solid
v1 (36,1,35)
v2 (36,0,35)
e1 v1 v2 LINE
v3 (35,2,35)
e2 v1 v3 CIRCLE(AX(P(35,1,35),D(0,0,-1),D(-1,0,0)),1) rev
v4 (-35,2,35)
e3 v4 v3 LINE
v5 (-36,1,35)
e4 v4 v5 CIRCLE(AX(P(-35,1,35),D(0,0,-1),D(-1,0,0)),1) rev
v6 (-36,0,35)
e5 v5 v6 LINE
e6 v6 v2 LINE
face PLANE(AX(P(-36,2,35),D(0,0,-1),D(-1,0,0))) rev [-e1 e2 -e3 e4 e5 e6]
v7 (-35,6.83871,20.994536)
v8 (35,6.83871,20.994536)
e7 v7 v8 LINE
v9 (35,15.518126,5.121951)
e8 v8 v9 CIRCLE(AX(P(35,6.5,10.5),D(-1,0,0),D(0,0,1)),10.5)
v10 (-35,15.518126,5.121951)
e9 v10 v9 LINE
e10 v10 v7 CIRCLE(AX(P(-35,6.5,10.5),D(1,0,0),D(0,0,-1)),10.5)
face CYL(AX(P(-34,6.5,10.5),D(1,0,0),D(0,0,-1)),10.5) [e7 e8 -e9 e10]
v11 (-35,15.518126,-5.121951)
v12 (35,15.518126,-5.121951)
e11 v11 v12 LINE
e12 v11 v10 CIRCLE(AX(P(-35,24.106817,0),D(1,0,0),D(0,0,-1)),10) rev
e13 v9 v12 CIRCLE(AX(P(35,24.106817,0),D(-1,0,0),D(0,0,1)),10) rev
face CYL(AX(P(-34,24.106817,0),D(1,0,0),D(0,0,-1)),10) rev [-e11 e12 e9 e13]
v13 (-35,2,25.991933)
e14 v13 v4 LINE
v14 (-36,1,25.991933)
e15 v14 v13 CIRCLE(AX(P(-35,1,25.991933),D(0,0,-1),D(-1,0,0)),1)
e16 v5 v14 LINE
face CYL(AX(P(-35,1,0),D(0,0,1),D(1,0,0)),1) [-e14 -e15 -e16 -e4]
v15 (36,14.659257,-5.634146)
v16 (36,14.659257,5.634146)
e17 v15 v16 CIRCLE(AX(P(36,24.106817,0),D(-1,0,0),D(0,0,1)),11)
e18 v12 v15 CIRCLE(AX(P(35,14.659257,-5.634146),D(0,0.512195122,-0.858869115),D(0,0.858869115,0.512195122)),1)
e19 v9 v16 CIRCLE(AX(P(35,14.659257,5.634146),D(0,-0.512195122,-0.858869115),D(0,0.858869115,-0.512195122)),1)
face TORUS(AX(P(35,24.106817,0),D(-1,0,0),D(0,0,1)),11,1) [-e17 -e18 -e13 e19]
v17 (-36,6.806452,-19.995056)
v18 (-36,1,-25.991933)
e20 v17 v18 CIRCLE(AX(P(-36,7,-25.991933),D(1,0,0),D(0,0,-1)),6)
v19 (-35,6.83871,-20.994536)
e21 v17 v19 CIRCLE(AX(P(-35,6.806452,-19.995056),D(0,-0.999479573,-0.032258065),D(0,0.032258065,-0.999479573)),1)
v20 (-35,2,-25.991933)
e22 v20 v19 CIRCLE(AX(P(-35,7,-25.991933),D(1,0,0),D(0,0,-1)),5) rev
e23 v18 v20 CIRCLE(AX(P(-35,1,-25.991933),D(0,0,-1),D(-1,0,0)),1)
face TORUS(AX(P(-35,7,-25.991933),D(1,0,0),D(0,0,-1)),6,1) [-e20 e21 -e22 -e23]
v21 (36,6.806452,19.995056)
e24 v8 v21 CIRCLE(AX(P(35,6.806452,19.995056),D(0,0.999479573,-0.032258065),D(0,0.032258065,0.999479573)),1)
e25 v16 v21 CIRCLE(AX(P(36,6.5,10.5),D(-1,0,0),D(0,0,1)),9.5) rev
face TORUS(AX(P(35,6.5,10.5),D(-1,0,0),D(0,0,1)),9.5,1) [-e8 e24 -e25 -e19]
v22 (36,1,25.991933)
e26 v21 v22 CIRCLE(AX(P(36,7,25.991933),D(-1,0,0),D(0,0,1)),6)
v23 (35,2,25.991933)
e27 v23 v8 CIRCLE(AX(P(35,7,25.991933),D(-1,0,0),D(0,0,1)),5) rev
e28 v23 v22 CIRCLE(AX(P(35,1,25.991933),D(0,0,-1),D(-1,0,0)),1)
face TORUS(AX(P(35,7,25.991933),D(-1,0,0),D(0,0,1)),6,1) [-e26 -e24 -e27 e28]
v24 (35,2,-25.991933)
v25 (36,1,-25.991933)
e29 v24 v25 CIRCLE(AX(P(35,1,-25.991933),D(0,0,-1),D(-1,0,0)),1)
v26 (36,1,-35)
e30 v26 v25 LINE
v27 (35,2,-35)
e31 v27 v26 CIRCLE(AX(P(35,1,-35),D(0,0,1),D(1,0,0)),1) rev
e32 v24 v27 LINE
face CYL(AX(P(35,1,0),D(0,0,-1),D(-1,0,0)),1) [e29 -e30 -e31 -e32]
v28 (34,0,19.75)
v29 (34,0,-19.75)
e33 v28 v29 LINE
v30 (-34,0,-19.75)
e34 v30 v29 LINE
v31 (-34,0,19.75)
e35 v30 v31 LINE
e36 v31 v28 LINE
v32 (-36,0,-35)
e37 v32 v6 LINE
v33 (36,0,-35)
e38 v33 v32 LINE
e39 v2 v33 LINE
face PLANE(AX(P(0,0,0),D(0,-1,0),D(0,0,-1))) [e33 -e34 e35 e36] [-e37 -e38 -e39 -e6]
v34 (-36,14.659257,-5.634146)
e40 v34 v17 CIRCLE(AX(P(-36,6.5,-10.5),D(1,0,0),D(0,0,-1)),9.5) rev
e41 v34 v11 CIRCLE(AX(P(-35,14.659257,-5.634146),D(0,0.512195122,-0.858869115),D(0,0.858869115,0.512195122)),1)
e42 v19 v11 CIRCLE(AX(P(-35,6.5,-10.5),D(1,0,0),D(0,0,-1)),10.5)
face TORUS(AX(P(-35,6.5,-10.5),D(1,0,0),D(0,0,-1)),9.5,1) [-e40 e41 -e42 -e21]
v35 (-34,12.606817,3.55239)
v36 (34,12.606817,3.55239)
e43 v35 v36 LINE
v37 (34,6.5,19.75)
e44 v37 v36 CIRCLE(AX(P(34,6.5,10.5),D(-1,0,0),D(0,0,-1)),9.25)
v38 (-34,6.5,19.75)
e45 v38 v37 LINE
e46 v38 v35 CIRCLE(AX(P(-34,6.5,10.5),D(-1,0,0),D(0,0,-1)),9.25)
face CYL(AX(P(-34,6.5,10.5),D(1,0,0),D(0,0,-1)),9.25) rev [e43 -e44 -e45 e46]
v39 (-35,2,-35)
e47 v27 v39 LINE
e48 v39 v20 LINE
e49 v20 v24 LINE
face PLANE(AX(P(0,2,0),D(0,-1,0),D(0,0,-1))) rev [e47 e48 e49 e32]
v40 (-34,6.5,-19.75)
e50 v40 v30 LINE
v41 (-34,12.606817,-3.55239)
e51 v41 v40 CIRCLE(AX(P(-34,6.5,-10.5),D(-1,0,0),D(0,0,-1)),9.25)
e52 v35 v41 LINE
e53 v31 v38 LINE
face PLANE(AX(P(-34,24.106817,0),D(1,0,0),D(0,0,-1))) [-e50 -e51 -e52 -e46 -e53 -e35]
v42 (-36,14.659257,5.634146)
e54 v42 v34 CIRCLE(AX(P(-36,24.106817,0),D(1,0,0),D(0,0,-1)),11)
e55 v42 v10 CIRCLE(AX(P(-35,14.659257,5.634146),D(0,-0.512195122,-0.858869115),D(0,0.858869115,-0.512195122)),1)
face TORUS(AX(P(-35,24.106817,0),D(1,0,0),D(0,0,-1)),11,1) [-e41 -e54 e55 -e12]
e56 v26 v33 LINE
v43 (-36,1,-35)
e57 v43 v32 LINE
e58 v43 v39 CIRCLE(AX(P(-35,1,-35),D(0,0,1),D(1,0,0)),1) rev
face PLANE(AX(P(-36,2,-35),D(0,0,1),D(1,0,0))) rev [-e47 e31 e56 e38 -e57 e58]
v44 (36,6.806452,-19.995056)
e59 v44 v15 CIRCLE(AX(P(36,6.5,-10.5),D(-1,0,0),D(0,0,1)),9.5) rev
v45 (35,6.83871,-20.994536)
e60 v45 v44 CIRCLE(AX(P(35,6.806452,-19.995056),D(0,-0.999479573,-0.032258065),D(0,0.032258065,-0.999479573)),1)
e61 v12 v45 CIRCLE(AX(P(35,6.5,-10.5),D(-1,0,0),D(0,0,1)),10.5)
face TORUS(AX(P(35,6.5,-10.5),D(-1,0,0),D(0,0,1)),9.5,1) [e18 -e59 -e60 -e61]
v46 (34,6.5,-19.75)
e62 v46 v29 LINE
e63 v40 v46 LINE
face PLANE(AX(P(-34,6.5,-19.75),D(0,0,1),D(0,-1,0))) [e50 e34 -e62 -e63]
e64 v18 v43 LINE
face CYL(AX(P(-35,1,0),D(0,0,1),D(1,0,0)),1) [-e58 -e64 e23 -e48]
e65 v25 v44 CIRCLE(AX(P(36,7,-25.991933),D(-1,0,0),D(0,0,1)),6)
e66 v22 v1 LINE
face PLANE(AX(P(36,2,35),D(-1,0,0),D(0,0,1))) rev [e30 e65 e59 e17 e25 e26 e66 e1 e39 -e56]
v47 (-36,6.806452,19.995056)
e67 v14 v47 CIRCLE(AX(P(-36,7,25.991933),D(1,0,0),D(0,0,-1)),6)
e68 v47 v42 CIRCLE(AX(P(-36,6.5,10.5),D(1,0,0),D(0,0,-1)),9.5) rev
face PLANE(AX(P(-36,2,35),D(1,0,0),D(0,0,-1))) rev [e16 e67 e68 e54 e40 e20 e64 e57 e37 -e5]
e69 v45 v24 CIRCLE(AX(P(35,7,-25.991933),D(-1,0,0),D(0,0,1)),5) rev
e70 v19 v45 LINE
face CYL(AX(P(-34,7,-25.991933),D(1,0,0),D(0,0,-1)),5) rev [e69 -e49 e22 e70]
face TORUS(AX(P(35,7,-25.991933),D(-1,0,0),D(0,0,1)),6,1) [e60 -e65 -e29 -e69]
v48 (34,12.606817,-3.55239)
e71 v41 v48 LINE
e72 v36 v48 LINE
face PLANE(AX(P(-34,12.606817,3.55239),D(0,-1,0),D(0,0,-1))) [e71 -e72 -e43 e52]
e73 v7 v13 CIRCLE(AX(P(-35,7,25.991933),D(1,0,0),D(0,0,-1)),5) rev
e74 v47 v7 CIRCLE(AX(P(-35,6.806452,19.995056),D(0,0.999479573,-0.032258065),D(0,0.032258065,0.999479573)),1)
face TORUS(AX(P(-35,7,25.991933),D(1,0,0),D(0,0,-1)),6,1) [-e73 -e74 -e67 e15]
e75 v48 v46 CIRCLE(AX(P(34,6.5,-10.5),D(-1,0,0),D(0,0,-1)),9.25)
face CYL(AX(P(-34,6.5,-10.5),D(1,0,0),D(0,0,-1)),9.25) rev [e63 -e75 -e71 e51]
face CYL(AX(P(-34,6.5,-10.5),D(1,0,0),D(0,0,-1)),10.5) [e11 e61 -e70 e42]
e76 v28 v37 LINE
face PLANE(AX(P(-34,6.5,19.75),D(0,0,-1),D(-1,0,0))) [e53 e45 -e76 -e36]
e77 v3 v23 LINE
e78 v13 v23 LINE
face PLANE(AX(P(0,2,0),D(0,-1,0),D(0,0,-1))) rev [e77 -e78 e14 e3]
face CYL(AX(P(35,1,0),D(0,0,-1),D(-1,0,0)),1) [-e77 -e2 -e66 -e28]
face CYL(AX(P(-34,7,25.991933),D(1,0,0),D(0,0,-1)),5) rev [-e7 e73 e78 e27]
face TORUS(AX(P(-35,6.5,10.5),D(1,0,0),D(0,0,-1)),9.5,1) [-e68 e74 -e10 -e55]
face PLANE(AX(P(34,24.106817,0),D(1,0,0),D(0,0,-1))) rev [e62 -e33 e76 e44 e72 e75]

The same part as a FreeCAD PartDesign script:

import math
import FreeCAD as App
import Part
import Sketcher

V = App.Vector


def edges_at(feature, points):
    """Names of the edges that pass closest to the given points."""
    edges = feature.Shape.Edges
    near = lambda p: min(range(len(edges)), key=lambda i: edges[i].distToShape(Part.Vertex(*p))[0])
    return sorted({f"Edge{near(p) + 1}" for p in points})


def add_polygon(sketch, points):
    """Adds a closed chain of lines whose ends are joined by coincident constraints."""
    first, n = sketch.GeometryCount, len(points)
    for a, b in zip(points, points[1:] + points[:1]):
        sketch.addGeometry(Part.LineSegment(App.Vector(*a, 0), App.Vector(*b, 0)), False)
    for i in range(n):
        sketch.addConstraint(Sketcher.Constraint("Coincident", first + i, 2, first + (i + 1) % n, 1))

doc = App.newDocument("Part")
params = doc.addObject("Spreadsheet::Sheet", "Params")
for row, (alias, value) in enumerate([
    ("sketch1_width", "72 mm"),
    ("sketch1_height", "70 mm"),
    ("pad1_length", "2 mm"),
    ("sketch2_radius", "5 mm"),
    ("sketch2_radius2", "10 mm"),
    ("sketch2_radius3", "10.5 mm"),
    ("sketch2_radius4", "9.25 mm"),
    ("sketch2_width", "4.5 mm"),
    ("pad2_length", "34 mm"),
    ("pad2_length2", "34 mm"),
    ("sketch3_width", "2 mm"),
    ("sketch3_height", "39.5 mm"),
    ("pocket1_length", "68 mm"),
    ("sketch4_radius", "5 mm"),
    ("sketch4_radius2", "10 mm"),
    ("sketch4_radius3", "10.5 mm"),
    ("pad3_length", "2 mm"),
    ("fillet_radius", "1 mm"),
    ("fillet2_radius", "1 mm"),
], start=1):
    params.set(f"A{row}", alias)
    params.set(f"B{row}", "=" + value)
    params.setAlias(f"B{row}", alias)

body = doc.addObject("PartDesign::Body", "Body")

# Sketch on XZ plane
sketch1 = body.newObject("Sketcher::SketchObject", "Sketch")
sketch1.AttachmentSupport = (doc.getObject("XZ_Plane"), [""])
sketch1.MapMode = "FlatFace"
add_polygon(sketch1, [(-36, -35), (-36, 35), (36, 35), (36, -35)])  # lines 0-3
sketch1.addConstraint([
    Sketcher.Constraint("Vertical", 0),
    Sketcher.Constraint("Horizontal", 1),
    Sketcher.Constraint("Vertical", 2),
    Sketcher.Constraint("Horizontal", 3),
    Sketcher.Constraint("Symmetric", 0, 2, 2, 2, -1, 1),
    Sketcher.Constraint("DistanceX", 1, 1, 1, 2, 72.0),
    Sketcher.Constraint("DistanceY", 0, 1, 0, 2, 70.0),
])
sketch1.setExpression("Constraints[9]", "Params.sketch1_width")
sketch1.setExpression("Constraints[10]", "Params.sketch1_height")
pad1 = body.newObject("PartDesign::Pad", "Pad")
pad1.Profile = sketch1
pad1.setExpression("Length", "Params.pad1_length")
pad1.Reversed = True

# Sketch on YZ plane
sketch2 = body.newObject("Sketcher::SketchObject", "Sketch001")
sketch2.AttachmentSupport = (doc.getObject("YZ_Plane"), [""])
sketch2.MapMode = "FlatFace"
sketch2.addGeometry([
    Part.LineSegment(V(2, 26, 0), V(2, 19.8, 0)),  # 0
    Part.LineSegment(V(2, 19.8, 0), V(6.5, 19.8, 0)),  # 1
    Part.ArcOfCircle(Part.Circle(V(6.5, 10.5, 0), V(0, 0, 1), 9.3), math.radians(-49), math.radians(90)),  # 2
    Part.LineSegment(V(12.6, 3.6, 0), V(12.6, -3.6, 0)),  # 3
    Part.ArcOfCircle(Part.Circle(V(6.5, -10.5, 0), V(0, 0, 1), 9.3), math.radians(-90), math.radians(49)),  # 4
    Part.LineSegment(V(6.5, -19.8, 0), V(2, -19.8, 0)),  # 5
    Part.LineSegment(V(2, -19.8, 0), V(2, -26, 0)),  # 6
    Part.ArcOfCircle(Part.Circle(V(7, -26, 0), V(0, 0, 1), 5), math.radians(92), math.radians(180)),  # 7
    Part.ArcOfCircle(Part.Circle(V(6.5, -10.5, 0), V(0, 0, 1), 10.5), math.radians(-88), math.radians(31)),  # 8
    Part.ArcOfCircle(Part.Circle(V(24.1, 0, 0), V(0, 0, 1), 10), math.radians(149), math.radians(211)),  # 9
    Part.ArcOfCircle(Part.Circle(V(6.5, 10.5, 0), V(0, 0, 1), 10.5), math.radians(-31), math.radians(88)),  # 10
    Part.ArcOfCircle(Part.Circle(V(7, 26, 0), V(0, 0, 1), 5), math.radians(180), math.radians(268)),  # 11
], False)
sketch2.addConstraint([
    Sketcher.Constraint("Coincident", 0, 2, 1, 1),
    Sketcher.Constraint("Tangent", 1, 2, 2, 2),
    Sketcher.Constraint("Coincident", 2, 1, 3, 1),
    Sketcher.Constraint("Coincident", 3, 2, 4, 2),
    Sketcher.Constraint("Tangent", 4, 1, 5, 1),
    Sketcher.Constraint("Coincident", 5, 2, 6, 1),
    Sketcher.Constraint("Tangent", 6, 2, 7, 2),
    Sketcher.Constraint("Tangent", 7, 1, 8, 1),
    Sketcher.Constraint("Tangent", 8, 2, 9, 2),
    Sketcher.Constraint("Tangent", 9, 1, 10, 1),
    Sketcher.Constraint("Tangent", 10, 2, 11, 2),
    Sketcher.Constraint("Tangent", 11, 1, 0, 1),
    Sketcher.Constraint("Vertical", 0),
    Sketcher.Constraint("Horizontal", 1),
    Sketcher.Constraint("Vertical", 3),
    Sketcher.Constraint("Horizontal", 5),
    Sketcher.Constraint("Vertical", 6),
    Sketcher.Constraint("Coincident", 8, 3, 4, 3),
    Sketcher.Constraint("Coincident", 10, 3, 2, 3),
    Sketcher.Constraint("Equal", 2, 4),
    Sketcher.Constraint("Equal", 8, 10),
    Sketcher.Constraint("Equal", 7, 11),
    Sketcher.Constraint("Symmetric", 2, 3, 4, 3, -1),
    Sketcher.Constraint("Vertical", 7, 3, 11, 3),
    Sketcher.Constraint("Radius", 7, 5.0),
    Sketcher.Constraint("Radius", 9, 10.0),
    Sketcher.Constraint("Radius", 8, 10.5),
    Sketcher.Constraint("Radius", 2, 9.25),
    Sketcher.Constraint("DistanceX", 1, 1, 1, 2, 4.5),
    Sketcher.Constraint("DistanceX", -1, 1, 7, 3, 7.0),
    Sketcher.Constraint("DistanceY", 4, 3, 2, 3, 21.0),
    Sketcher.Constraint("DistanceX", 2, 1, 9, 3, 11.5),
])
sketch2.setExpression("Constraints[24]", "Params.sketch2_radius")
sketch2.setExpression("Constraints[25]", "Params.sketch2_radius2")
sketch2.setExpression("Constraints[26]", "Params.sketch2_radius3")
sketch2.setExpression("Constraints[27]", "Params.sketch2_radius4")
sketch2.setExpression("Constraints[28]", "Params.sketch2_width")
pad2 = body.newObject("PartDesign::Pad", "Pad001")
pad2.Profile = sketch2
pad2.Type = "TwoLengths"
pad2.setExpression("Length", "Params.pad2_length")
pad2.setExpression("Length2", "Params.pad2_length2")

# Sketch on YZ plane
sketch3 = body.newObject("Sketcher::SketchObject", "Sketch002")
sketch3.AttachmentSupport = (doc.getObject("YZ_Plane"), [""])
sketch3.MapMode = "FlatFace"
sketch3.AttachmentOffset = App.Placement(V(0, 0, -34), App.Rotation())
add_polygon(sketch3, [(2, 19.8), (0, 19.8), (0, -19.8), (2, -19.8)])  # lines 0-3
sketch3.addConstraint([
    Sketcher.Constraint("Horizontal", 0),
    Sketcher.Constraint("Vertical", 1),
    Sketcher.Constraint("Horizontal", 2),
    Sketcher.Constraint("Vertical", 3),
    Sketcher.Constraint("Symmetric", 0, 2, 1, 2, -1, 1),
    Sketcher.Constraint("DistanceX", 0, 2, 0, 1, 2.0),
    Sketcher.Constraint("DistanceY", 1, 2, 1, 1, 39.5),
])
sketch3.setExpression("Constraints[9]", "Params.sketch3_width")
sketch3.setExpression("Constraints[10]", "Params.sketch3_height")
pocket1 = body.newObject("PartDesign::Pocket", "Pocket")
pocket1.Profile = sketch3
pocket1.setExpression("Length", "Params.pocket1_length")
pocket1.Reversed = True

# Sketch on YZ plane
sketch4 = body.newObject("Sketcher::SketchObject", "Sketch003")
sketch4.AttachmentSupport = (doc.getObject("YZ_Plane"), [""])
sketch4.MapMode = "FlatFace"
sketch4.AttachmentOffset = App.Placement(V(0, 0, 34), App.Rotation())
sketch4.addGeometry([
    Part.LineSegment(V(2, 26, 0), V(2, -26, 0)),  # 0
    Part.ArcOfCircle(Part.Circle(V(7, -26, 0), V(0, 0, 1), 5), math.radians(92), math.radians(180)),  # 1
    Part.ArcOfCircle(Part.Circle(V(6.5, -10.5, 0), V(0, 0, 1), 10.5), math.radians(-88), math.radians(31)),  # 2
    Part.ArcOfCircle(Part.Circle(V(24.1, 0, 0), V(0, 0, 1), 10), math.radians(149), math.radians(211)),  # 3
    Part.ArcOfCircle(Part.Circle(V(6.5, 10.5, 0), V(0, 0, 1), 10.5), math.radians(-31), math.radians(88)),  # 4
    Part.ArcOfCircle(Part.Circle(V(7, 26, 0), V(0, 0, 1), 5), math.radians(180), math.radians(268)),  # 5
], False)
sketch4.addConstraint([
    Sketcher.Constraint("Tangent", 0, 2, 1, 2),
    Sketcher.Constraint("Tangent", 1, 1, 2, 1),
    Sketcher.Constraint("Tangent", 2, 2, 3, 2),
    Sketcher.Constraint("Tangent", 3, 1, 4, 1),
    Sketcher.Constraint("Tangent", 4, 2, 5, 2),
    Sketcher.Constraint("Tangent", 5, 1, 0, 1),
    Sketcher.Constraint("Vertical", 0),
    Sketcher.Constraint("Equal", 2, 4),
    Sketcher.Constraint("Equal", 1, 5),
    Sketcher.Constraint("Symmetric", 2, 3, 4, 3, -1),
    Sketcher.Constraint("Radius", 1, 5.0),
    Sketcher.Constraint("Radius", 3, 10.0),
    Sketcher.Constraint("Radius", 2, 10.5),
    Sketcher.Constraint("DistanceX", -1, 1, 1, 3, 7.0),
    Sketcher.Constraint("DistanceY", 2, 3, 4, 3, 21.0),
    Sketcher.Constraint("DistanceX", -1, 1, 2, 3, 6.5),
])
sketch4.setExpression("Constraints[10]", "Params.sketch4_radius")
sketch4.setExpression("Constraints[11]", "Params.sketch4_radius2")
sketch4.setExpression("Constraints[12]", "Params.sketch4_radius3")
pad3 = body.newObject("PartDesign::Pad", "Pad002")
pad3.Profile = sketch4
pad3.setExpression("Length", "Params.pad3_length")
doc.recompute()

fillet = body.newObject("PartDesign::Fillet", "Fillet")
fillet.Base = (pad3, edges_at(pad3, [
    (36, 2, 30.496),
    (36, 2, -30.496),
    (36, 3.408, -22.514),
    (36, 15.713, -15.538),
    (36, 14.107, 0),
    (36, 15.713, 15.538),
    (36, 3.408, 22.514),
]))
fillet.setExpression("Radius", "Params.fillet_radius")
doc.recompute()

mirrored = body.newObject("PartDesign::Mirrored", "Mirrored")
mirrored.Originals = [pad3]
mirrored.MirrorPlane = (doc.getObject("YZ_Plane"), [""])
body.Tip = mirrored
doc.recompute()

fillet2 = body.newObject("PartDesign::Fillet", "Fillet001")
fillet2.Base = (mirrored, edges_at(mirrored, [
    (-36, 2, 30.496),
    (-36, 2, -30.496),
    (-36, 3.408, -22.514),
    (-36, 15.713, -15.538),
    (-36, 14.107, 0),
    (-36, 15.713, 15.538),
    (-36, 3.408, 22.514),
]))
fillet2.setExpression("Radius", "Params.fillet2_radius")

doc.recompute()
